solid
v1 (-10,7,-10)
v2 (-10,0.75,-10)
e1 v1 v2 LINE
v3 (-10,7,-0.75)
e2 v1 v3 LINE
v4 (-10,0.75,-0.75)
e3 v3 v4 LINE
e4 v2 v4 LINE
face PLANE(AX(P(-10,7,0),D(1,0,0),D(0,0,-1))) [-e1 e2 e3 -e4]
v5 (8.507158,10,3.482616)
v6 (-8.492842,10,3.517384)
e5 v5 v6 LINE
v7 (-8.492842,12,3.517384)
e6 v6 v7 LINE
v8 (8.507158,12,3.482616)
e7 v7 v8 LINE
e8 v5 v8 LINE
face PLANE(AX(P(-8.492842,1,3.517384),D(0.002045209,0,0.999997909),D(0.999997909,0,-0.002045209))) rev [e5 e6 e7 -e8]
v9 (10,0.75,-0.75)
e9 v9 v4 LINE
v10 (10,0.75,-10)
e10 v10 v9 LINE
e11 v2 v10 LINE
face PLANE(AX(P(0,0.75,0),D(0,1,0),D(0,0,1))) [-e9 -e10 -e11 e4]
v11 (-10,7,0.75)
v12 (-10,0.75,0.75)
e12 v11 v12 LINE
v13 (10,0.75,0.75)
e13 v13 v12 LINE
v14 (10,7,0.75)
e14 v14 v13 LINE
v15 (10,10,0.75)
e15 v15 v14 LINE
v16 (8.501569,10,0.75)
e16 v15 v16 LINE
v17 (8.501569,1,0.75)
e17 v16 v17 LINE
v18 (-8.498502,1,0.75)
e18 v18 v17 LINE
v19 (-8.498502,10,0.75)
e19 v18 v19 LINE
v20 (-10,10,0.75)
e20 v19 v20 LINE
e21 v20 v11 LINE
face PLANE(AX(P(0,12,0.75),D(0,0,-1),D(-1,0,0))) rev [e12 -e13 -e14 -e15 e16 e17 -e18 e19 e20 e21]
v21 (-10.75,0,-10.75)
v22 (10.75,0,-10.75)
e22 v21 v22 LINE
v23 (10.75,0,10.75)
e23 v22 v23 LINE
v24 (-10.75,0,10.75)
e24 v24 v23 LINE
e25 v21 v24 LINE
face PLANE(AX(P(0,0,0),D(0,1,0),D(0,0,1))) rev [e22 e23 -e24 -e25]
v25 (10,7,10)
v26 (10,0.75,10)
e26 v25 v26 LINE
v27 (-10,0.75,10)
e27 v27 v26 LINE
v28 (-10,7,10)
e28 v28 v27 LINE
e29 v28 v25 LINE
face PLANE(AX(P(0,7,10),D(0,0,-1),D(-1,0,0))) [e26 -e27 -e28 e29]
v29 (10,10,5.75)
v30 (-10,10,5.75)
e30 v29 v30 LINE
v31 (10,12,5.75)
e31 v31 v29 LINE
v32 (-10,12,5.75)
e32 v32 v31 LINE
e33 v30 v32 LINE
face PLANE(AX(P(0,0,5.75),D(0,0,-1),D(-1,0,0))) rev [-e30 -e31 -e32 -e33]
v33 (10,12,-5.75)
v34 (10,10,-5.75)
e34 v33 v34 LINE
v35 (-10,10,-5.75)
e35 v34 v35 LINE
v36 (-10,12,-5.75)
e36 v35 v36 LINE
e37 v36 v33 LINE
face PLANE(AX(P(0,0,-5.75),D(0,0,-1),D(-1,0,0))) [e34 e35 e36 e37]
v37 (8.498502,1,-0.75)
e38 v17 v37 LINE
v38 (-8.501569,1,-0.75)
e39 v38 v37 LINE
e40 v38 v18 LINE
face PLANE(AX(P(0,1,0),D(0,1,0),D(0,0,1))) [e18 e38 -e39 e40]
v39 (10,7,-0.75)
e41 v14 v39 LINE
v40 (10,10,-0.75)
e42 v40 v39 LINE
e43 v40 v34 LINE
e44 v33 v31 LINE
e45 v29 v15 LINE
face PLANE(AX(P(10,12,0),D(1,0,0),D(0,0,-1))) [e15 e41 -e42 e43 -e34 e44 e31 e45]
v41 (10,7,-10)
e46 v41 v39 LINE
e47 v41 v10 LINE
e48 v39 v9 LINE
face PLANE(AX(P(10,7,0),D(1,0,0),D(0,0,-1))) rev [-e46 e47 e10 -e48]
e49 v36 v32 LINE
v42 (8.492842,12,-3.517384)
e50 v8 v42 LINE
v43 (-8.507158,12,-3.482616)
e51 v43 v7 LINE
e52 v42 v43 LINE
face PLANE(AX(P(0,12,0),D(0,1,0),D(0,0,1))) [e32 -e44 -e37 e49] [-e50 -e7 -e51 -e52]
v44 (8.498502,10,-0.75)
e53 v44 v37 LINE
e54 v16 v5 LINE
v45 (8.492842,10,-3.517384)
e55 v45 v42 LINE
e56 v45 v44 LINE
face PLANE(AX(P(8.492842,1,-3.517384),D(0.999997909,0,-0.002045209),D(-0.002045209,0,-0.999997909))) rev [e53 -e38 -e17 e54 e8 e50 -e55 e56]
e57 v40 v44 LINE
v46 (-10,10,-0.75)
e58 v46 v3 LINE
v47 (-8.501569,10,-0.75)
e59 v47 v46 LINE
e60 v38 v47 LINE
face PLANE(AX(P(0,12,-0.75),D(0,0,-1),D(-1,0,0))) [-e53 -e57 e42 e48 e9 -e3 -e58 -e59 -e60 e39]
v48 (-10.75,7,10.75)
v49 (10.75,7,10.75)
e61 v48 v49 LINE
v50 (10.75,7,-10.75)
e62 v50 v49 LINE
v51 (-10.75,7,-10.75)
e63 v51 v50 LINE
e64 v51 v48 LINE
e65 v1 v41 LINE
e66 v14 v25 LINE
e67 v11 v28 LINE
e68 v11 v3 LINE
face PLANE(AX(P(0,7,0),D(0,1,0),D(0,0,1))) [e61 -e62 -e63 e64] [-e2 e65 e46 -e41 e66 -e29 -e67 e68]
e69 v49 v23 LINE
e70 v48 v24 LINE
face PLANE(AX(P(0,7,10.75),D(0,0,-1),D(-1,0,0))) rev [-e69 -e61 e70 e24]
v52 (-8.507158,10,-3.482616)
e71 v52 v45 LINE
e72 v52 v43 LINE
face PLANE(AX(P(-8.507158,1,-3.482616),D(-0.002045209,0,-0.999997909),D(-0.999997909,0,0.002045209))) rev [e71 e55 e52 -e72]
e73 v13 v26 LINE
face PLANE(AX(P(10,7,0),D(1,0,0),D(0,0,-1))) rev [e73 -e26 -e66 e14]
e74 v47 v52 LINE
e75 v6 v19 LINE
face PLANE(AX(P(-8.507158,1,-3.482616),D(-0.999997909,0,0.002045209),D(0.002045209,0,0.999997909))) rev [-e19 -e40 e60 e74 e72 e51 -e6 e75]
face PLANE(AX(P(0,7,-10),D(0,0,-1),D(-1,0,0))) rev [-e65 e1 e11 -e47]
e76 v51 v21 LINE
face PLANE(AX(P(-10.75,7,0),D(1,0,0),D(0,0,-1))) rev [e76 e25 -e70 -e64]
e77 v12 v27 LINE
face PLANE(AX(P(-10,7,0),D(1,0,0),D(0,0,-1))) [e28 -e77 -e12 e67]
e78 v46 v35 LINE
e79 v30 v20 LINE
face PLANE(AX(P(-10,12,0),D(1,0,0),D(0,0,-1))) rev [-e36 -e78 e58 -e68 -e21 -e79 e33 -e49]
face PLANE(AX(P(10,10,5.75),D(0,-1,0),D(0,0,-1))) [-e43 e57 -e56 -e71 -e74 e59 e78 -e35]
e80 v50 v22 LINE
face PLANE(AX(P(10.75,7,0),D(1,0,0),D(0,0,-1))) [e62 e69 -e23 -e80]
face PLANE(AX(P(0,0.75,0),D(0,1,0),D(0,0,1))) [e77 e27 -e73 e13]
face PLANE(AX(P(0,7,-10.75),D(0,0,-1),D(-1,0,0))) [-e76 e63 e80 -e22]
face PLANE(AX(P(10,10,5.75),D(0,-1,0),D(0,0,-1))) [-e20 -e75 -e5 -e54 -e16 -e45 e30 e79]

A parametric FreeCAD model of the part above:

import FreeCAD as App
import Part
import Sketcher


def add_polygon(sketch, points):
    """Adds a closed chain of lines whose ends are joined by coincident constraints."""
    first, n = sketch.GeometryCount, len(points)
    for a, b in zip(points, points[1:] + points[:1]):
        sketch.addGeometry(Part.LineSegment(App.Vector(*a, 0), App.Vector(*b, 0)), False)
    for i in range(n):
        sketch.addConstraint(Sketcher.Constraint("Coincident", first + i, 2, first + (i + 1) % n, 1))

doc = App.newDocument("Part")
body = doc.addObject("PartDesign::Body", "Body")

sketch1 = doc.addObject("Sketcher::SketchObject", "Sketch")
body.addObject(sketch1)
sketch1.AttachmentSupport = (doc.XZ_Plane, [""])
sketch1.MapMode = "FlatFace"
add_polygon(sketch1, [(-10.75, -10.75), (-10.75, 10.75), (10.75, 10.75), (10.75, -10.75)])
add_polygon(sketch1, [(10, 10), (-10, 10), (-10, -10), (10, -10)])
sketch1.addConstraint([
    Sketcher.Constraint("Vertical", 0),
    Sketcher.Constraint("Horizontal", 1),
    Sketcher.Constraint("Vertical", 2),
    Sketcher.Constraint("Horizontal", 3),
    Sketcher.Constraint("Horizontal", 4),
    Sketcher.Constraint("Vertical", 5),
    Sketcher.Constraint("Horizontal", 6),
    Sketcher.Constraint("Vertical", 7),
    Sketcher.Constraint("Symmetric", 0, 2, 2, 2, -1, 1),
    Sketcher.Constraint("Symmetric", 4, 2, 6, 2, -1, 1),
    Sketcher.Constraint("Equal", 3, 0),
    Sketcher.Constraint("Equal", 6, 5),
    Sketcher.Constraint("DistanceX", 4, 2, 4, 1, 20.0),
    Sketcher.Constraint("DistanceX", 1, 1, 1, 2, 21.5),
])
pad1 = doc.addObject("PartDesign::Pad", "Pad")
body.addObject(pad1)
pad1.Profile = sketch1
pad1.Length = 7
pad1.Reversed = True

sketch2 = doc.addObject("Sketcher::SketchObject", "Sketch001")
body.addObject(sketch2)
sketch2.AttachmentSupport = (doc.XZ_Plane, [""])
sketch2.MapMode = "FlatFace"
add_polygon(sketch2, [(-10, 10), (10, 10), (10, -10), (-10, -10)])
sketch2.addConstraint([
    Sketcher.Constraint("Horizontal", 0),
    Sketcher.Constraint("Vertical", 1),
    Sketcher.Constraint("Horizontal", 2),
    Sketcher.Constraint("Vertical", 3),
    Sketcher.Constraint("Symmetric", 0, 2, 2, 2, -1, 1),
    Sketcher.Constraint("Equal", 2, 1),
    Sketcher.Constraint("DistanceX", 0, 1, 0, 2, 20.0),
])
pad2 = doc.addObject("PartDesign::Pad", "Pad001")
body.addObject(pad2)
pad2.Profile = sketch2
pad2.Length = 0.75
pad2.Reversed = True

sketch3 = doc.addObject("Sketcher::SketchObject", "Sketch002")
body.addObject(sketch3)
sketch3.AttachmentSupport = (doc.XZ_Plane, [""])
sketch3.MapMode = "FlatFace"
add_polygon(sketch3, [(-10, -0.75), (-10, 0.75), (10, 0.75), (10, -0.75)])
sketch3.addConstraint([
    Sketcher.Constraint("Vertical", 0),
    Sketcher.Constraint("Horizontal", 1),
    Sketcher.Constraint("Vertical", 2),
    Sketcher.Constraint("Horizontal", 3),
    Sketcher.Constraint("Symmetric", 0, 2, 2, 2, -1, 1),
    Sketcher.Constraint("DistanceX", 1, 1, 1, 2, 20.0),
    Sketcher.Constraint("DistanceY", 0, 1, 0, 2, 1.5),
])
pad3 = doc.addObject("PartDesign::Pad", "Pad002")
body.addObject(pad3)
pad3.Profile = sketch3
pad3.Length = 12
pad3.Reversed = True

sketch4 = doc.addObject("Sketcher::SketchObject", "Sketch003")
body.addObject(sketch4)
sketch4.AttachmentSupport = (doc.XY_Plane, [""])
sketch4.MapMode = "FlatFace"
sketch4.AttachmentOffset = App.Placement(App.Vector(0, 0, -0.75), App.Rotation())
add_polygon(sketch4, [(10, 12), (10, 10), (-10, 10), (-10, 12)])
sketch4.addConstraint([
    Sketcher.Constraint("Vertical", 0),
    Sketcher.Constraint("Horizontal", 1),
    Sketcher.Constraint("Vertical", 2),
    Sketcher.Constraint("Horizontal", 3),
    Sketcher.Constraint("DistanceX", 1, 2, 1, 1, 20.0),
    Sketcher.Constraint("DistanceY", 0, 2, 0, 1, 2.0),
    Sketcher.Constraint("DistanceX", -1, 1, 0, 2, 10.0),
    Sketcher.Constraint("DistanceY", -1, 1, 0, 2, 10.0),
])
pad4 = doc.addObject("PartDesign::Pad", "Pad003")
body.addObject(pad4)
pad4.Profile = sketch4
pad4.Type = "TwoLengths"
pad4.Length = 5
pad4.Length2 = 6.5
pad4.Reversed = True

sketch5 = doc.addObject("Sketcher::SketchObject", "Sketch004")
body.addObject(sketch5)
sketch5.AttachmentSupport = (doc.XZ_Plane, [""])
sketch5.MapMode = "FlatFace"
sketch5.AttachmentOffset = App.Placement(App.Vector(0, 0, -12), App.Rotation())
add_polygon(sketch5, [(8.492842, -3.517384), (-8.507158, -3.482616), (-8.492842, 3.517384), (8.507158, 3.482616)])
sketch5.addConstraint([
    Sketcher.Constraint("Symmetric", 0, 2, 2, 2, -1, 1),
    Sketcher.Constraint("Symmetric", 1, 2, 3, 2, -1, 1),
    Sketcher.Constraint("Perpendicular", 0, 1),
    Sketcher.Constraint("DistanceY", 0, 2, 1, 2, 7.0),
    Sketcher.Constraint("DistanceX", 1, 2, 2, 2, 17.0),
    Sketcher.Constraint("DistanceX", 0, 2, -1, 1, 8.507158),
])
pocket1 = doc.addObject("PartDesign::Pocket", "Pocket")
body.addObject(pocket1)
pocket1.Profile = sketch5
pocket1.Length = 11
pocket1.Reversed = True

doc.recompute()
